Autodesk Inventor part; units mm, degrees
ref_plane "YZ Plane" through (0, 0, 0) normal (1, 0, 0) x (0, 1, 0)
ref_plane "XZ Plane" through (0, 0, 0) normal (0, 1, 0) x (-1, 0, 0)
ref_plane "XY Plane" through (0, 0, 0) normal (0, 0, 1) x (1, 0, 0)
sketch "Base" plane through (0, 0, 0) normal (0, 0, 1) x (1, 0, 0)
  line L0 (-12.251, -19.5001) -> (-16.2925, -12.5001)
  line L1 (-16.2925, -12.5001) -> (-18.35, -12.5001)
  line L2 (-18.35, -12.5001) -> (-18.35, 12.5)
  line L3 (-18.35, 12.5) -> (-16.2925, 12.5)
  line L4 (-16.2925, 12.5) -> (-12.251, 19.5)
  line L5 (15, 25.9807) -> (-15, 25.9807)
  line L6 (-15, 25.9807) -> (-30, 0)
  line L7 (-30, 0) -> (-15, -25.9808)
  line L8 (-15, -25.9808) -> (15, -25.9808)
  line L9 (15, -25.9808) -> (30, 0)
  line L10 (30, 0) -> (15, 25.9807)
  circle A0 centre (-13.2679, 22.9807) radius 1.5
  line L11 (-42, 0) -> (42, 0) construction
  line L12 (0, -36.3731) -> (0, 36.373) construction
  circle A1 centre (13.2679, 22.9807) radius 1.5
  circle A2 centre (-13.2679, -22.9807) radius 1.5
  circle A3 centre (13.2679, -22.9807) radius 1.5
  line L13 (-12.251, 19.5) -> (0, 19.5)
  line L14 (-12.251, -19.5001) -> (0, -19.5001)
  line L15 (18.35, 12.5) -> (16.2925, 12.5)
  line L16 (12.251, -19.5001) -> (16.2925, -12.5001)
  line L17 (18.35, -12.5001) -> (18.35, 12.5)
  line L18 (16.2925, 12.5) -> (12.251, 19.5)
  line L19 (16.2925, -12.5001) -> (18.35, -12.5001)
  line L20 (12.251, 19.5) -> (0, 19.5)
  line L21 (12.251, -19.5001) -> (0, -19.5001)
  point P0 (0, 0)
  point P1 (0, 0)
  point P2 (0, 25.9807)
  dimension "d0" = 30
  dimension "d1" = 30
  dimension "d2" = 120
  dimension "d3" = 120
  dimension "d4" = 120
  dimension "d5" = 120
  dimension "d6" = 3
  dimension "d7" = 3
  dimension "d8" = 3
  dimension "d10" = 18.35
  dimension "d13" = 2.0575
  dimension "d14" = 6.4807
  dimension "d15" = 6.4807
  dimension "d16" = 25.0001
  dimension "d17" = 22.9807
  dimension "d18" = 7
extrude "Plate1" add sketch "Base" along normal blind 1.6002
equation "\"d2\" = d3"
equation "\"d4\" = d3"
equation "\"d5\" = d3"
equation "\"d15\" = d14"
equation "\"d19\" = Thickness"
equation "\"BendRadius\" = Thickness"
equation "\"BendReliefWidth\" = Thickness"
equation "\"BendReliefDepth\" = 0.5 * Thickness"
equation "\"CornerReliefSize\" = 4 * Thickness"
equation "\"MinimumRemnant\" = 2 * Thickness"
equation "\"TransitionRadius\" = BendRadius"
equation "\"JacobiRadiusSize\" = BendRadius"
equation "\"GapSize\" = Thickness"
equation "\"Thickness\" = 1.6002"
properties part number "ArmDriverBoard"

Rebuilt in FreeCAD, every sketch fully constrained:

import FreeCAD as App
import Part
import Sketcher
from FreeCAD import Vector
Q = App.Units.Quantity


def add_polygon(sketch, points):
    """Adds a closed chain of lines whose ends are joined by coincident constraints."""
    first, n = sketch.GeometryCount, len(points)
    for a, b in zip(points, points[1:] + points[:1]):
        sketch.addGeometry(Part.LineSegment(App.Vector(*a, 0), App.Vector(*b, 0)), False)
    for i in range(n):
        sketch.addConstraint(Sketcher.Constraint("Coincident", first + i, 2, first + (i + 1) % n, 1))

doc = App.newDocument("Part")
body = doc.addObject("PartDesign::Body", "Body")

# Sketch on XY plane
sketch1 = body.newObject("Sketcher::SketchObject", "Sketch")
sketch1.AttachmentSupport = (doc.getObject("XY_Plane"), [""])
sketch1.MapMode = "FlatFace"
add_polygon(sketch1, [(30, 0), (15, 26), (-15, 26), (-30, 0), (-15, -26), (15, -26)])  # lines 0-5
sketch1.addGeometry(Part.Circle(Vector(-13.3, -23, 0), Vector(0, 0, 1), 1.5), False)  # 6
sketch1.addGeometry(Part.Circle(Vector(13.3, -23, 0), Vector(0, 0, 1), 1.5), False)  # 7
sketch1.addGeometry(Part.Circle(Vector(-13.3, 23, 0), Vector(0, 0, 1), 1.5), False)  # 8
add_polygon(sketch1, [(12.3, -19.5), (-12.3, -19.5), (-16.3, -12.5), (-18.4, -12.5), (-18.4, 12.5), (-16.3, 12.5), (-12.3, 19.5), (12.3, 19.5), (16.3, 12.5), (18.4, 12.5), (18.4, -12.5), (16.3, -12.5)])  # lines 9-20
sketch1.addGeometry(Part.Circle(Vector(13.3, 23, 0), Vector(0, 0, 1), 1.5), False)  # 21
sketch1.addConstraint(Sketcher.Constraint("Horizontal", 1))
sketch1.addConstraint(Sketcher.Constraint("Horizontal", 4))
sketch1.addConstraint(Sketcher.Constraint("Horizontal", 9))
sketch1.addConstraint(Sketcher.Constraint("Horizontal", 11))
sketch1.addConstraint(Sketcher.Constraint("Vertical", 12))
sketch1.addConstraint(Sketcher.Constraint("Horizontal", 13))
sketch1.addConstraint(Sketcher.Constraint("Horizontal", 15))
sketch1.addConstraint(Sketcher.Constraint("Horizontal", 17))
sketch1.addConstraint(Sketcher.Constraint("Vertical", 18))
sketch1.addConstraint(Sketcher.Constraint("Horizontal", 19))
sketch1.addConstraint(Sketcher.Constraint("Equal", 6, 7))
sketch1.addConstraint(Sketcher.Constraint("Equal", 7, 8))
sketch1.addConstraint(Sketcher.Constraint("Equal", 8, 21))
sketch1.addConstraint(Sketcher.Constraint("Symmetric", 7, 3, 8, 3, -1, 1))
sketch1.addConstraint(Sketcher.Constraint("Symmetric", 6, 3, 21, 3, -1, 1))
sketch1.addConstraint(Sketcher.Constraint("Symmetric", 0, 2, 3, 2, -1, 1))
sketch1.addConstraint(Sketcher.Constraint("Symmetric", 2, 2, 5, 2, -1, 1))
sketch1.addConstraint(Sketcher.Constraint("Symmetric", 9, 2, 15, 2, -1, 1))
sketch1.addConstraint(Sketcher.Constraint("Symmetric", 10, 2, 16, 2, -1, 1))
sketch1.addConstraint(Sketcher.Constraint("Symmetric", 12, 2, 18, 2, -1, 1))
sketch1.addConstraint(Sketcher.Constraint("Symmetric", 6, 3, 7, 3, -2))
sketch1.addConstraint(Sketcher.Constraint("Symmetric", 13, 2, 16, 2, -2))
sketch1.addConstraint(Sketcher.Constraint("PointOnObject", 2, 2, -1))
sketch1.addConstraint(Sketcher.Constraint("Parallel", 2, 5))
sketch1.addConstraint(Sketcher.Constraint("Parallel", 3, 10))
sketch1.addConstraint(Sketcher.Constraint("Parallel", 5, 14))
sketch1.addConstraint(Sketcher.Constraint("Parallel", 14, 20))
sketch1.addConstraint(Sketcher.Constraint("Vertical", 1, 2, 3, 2))
sketch1.addConstraint(Sketcher.Constraint("Vertical", 16, 2, 19, 2))
sketch1.addConstraint(Sketcher.Constraint("Angle", 0, Q("120 deg")))
sketch1.addConstraint(Sketcher.Constraint("Diameter", 6, Q("0.1181 in")))
sketch1.addConstraint(Sketcher.Constraint("DistanceX", 11, 2, 11, 1, Q("0.081 in")))
sketch1.addConstraint(Sketcher.Constraint("DistanceX", 1, 2, 1, 1, Q("1.1811 in")))
sketch1.addConstraint(Sketcher.Constraint("Distance", 0, Q("1.1811 in")))
sketch1.addConstraint(Sketcher.Constraint("DistanceY", 12, 1, 12, 2, Q("25 mm")))
sketch1.addConstraint(Sketcher.Constraint("DistanceY", 21, 3, 0, 2, Q("0.1181 in")))
sketch1.addConstraint(Sketcher.Constraint("DistanceY", 9, 2, 10, 2, Q("0.2756 in")))
sketch1.addConstraint(Sketcher.Constraint("DistanceX", 11, 2, -1, 1, Q("18.35 mm")))
sketch1.addConstraint(Sketcher.Constraint("DistanceX", 21, 3, 0, 2, Q("0.0682 in")))
pad1 = body.newObject("PartDesign::Pad", "Pad")
pad1.Profile = sketch1
pad1.Length = Q("0.063 in")

doc.recompute()
